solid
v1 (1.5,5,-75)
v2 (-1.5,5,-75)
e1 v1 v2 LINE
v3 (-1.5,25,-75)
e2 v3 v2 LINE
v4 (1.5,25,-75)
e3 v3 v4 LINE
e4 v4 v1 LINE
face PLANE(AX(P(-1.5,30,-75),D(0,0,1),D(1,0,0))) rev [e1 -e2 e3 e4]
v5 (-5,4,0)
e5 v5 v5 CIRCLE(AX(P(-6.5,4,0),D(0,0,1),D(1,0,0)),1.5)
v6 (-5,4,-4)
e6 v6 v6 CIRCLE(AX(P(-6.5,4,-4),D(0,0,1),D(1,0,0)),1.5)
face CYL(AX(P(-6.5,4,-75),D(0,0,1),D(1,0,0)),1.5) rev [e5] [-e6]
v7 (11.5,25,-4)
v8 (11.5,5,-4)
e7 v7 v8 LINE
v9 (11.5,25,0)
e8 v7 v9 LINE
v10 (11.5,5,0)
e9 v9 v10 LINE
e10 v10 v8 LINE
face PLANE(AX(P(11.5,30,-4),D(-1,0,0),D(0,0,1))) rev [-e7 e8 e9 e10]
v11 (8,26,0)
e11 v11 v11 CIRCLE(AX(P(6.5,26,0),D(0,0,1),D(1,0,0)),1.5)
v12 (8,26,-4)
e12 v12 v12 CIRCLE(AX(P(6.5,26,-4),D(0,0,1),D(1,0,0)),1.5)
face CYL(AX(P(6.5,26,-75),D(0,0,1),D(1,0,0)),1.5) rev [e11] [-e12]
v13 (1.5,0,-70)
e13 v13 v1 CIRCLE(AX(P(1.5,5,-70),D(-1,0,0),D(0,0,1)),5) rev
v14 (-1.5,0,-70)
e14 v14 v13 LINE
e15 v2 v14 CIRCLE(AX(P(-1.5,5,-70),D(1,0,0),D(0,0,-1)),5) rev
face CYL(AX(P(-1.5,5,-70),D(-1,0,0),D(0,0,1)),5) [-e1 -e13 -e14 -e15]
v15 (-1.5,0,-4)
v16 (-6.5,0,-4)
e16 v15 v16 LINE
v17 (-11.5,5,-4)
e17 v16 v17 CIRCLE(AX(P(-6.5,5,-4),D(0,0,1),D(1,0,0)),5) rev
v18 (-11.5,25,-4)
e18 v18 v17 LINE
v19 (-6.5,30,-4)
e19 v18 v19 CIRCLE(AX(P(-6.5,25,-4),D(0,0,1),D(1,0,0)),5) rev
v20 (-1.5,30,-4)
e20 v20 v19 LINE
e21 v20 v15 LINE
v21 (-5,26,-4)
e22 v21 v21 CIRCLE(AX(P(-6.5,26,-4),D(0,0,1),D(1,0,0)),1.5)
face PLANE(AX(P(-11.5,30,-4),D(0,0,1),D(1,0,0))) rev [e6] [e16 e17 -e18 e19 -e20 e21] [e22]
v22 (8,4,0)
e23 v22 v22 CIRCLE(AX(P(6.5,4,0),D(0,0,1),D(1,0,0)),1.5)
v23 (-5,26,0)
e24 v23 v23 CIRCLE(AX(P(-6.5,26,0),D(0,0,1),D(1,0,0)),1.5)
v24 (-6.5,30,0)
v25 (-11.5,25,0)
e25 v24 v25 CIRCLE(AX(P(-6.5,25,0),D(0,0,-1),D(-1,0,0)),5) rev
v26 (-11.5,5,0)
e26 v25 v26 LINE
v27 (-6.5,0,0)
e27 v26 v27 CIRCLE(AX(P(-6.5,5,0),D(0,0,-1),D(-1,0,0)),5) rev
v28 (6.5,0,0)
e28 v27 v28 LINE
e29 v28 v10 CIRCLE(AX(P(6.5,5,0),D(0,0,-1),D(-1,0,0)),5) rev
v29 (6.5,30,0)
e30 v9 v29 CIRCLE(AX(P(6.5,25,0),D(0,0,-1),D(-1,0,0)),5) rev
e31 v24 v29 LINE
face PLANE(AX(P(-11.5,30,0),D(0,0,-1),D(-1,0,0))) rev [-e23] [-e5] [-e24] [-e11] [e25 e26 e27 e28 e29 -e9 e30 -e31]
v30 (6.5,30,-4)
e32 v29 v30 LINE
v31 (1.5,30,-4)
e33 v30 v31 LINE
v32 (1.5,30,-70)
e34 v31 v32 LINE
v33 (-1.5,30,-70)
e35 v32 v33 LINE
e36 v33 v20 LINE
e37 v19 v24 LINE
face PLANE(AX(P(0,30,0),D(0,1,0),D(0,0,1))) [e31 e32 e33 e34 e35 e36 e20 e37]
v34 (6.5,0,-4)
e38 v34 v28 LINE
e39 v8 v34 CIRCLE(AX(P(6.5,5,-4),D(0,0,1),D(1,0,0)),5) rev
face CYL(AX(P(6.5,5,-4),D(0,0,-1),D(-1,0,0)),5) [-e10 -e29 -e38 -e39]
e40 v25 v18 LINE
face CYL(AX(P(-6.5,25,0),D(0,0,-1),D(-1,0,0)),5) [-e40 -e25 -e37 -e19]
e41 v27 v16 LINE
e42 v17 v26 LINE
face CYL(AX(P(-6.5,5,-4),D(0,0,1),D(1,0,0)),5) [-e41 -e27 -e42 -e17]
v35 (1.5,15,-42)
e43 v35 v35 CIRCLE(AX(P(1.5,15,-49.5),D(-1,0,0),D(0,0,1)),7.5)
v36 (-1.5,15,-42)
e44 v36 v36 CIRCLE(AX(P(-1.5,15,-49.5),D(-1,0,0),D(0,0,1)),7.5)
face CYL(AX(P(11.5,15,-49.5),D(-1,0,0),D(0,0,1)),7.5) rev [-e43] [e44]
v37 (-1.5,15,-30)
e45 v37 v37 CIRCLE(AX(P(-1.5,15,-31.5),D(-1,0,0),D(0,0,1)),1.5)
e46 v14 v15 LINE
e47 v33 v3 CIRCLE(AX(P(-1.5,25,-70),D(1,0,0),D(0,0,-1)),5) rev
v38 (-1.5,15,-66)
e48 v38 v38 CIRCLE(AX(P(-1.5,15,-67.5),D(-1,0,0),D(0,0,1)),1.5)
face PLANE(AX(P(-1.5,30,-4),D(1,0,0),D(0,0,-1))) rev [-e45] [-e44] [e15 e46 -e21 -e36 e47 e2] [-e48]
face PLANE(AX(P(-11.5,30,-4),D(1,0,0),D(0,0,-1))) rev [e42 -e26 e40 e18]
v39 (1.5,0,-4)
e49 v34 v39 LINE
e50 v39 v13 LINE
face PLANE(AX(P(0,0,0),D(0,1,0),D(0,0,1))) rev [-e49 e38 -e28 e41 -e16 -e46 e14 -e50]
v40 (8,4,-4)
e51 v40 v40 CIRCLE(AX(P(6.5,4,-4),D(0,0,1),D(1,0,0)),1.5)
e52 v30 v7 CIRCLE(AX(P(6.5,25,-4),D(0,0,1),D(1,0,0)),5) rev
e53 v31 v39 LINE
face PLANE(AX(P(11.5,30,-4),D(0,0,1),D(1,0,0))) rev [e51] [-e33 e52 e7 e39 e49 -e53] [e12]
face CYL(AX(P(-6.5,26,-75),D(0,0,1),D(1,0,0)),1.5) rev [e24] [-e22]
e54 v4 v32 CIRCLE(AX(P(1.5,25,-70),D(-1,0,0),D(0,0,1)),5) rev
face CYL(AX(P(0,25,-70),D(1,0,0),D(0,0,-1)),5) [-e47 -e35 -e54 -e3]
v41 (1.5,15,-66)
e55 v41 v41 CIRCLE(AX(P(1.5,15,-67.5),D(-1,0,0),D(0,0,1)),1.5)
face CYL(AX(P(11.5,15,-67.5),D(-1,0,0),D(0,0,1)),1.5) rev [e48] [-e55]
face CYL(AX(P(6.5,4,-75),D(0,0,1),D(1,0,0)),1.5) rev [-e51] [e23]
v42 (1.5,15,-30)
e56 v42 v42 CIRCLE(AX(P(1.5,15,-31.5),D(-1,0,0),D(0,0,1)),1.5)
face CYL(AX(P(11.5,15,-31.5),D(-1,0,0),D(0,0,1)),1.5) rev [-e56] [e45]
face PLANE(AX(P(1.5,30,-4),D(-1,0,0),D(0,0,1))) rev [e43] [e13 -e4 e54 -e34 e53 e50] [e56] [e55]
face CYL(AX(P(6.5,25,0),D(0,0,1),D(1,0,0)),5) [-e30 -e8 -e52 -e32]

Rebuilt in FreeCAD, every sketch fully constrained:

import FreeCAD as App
import Part
import Sketcher

V = App.Vector
Q = App.Units.Quantity


def edges_at(feature, points):
    """Names of the edges that pass closest to the given points."""
    edges = feature.Shape.Edges
    near = lambda p: min(range(len(edges)), key=lambda i: edges[i].distToShape(Part.Vertex(*p))[0])
    return sorted({f"Edge{near(p) + 1}" for p in points})


def add_polygon(sketch, points):
    """Adds a closed chain of lines whose ends are joined by coincident constraints."""
    first, n = sketch.GeometryCount, len(points)
    for a, b in zip(points, points[1:] + points[:1]):
        sketch.addGeometry(Part.LineSegment(App.Vector(*a, 0), App.Vector(*b, 0)), False)
    for i in range(n):
        sketch.addConstraint(Sketcher.Constraint("Coincident", first + i, 2, first + (i + 1) % n, 1))

doc = App.newDocument("Part")
body = doc.addObject("PartDesign::Body", "Body")

sketch1 = body.newObject("Sketcher::SketchObject", "Sketch")
sketch1.AttachmentSupport = (doc.getObject("XZ_Plane"), [""])
sketch1.MapMode = "FlatFace"
add_polygon(sketch1, [(-1.5, -4), (-11.5, -4), (-11.5, 0), (11.5, 0), (11.5, -4), (1.5, -4), (1.5, -75), (-1.5, -75)])
sketch1.addConstraint([
    Sketcher.Constraint("Horizontal", 0),
    Sketcher.Constraint("Vertical", 1),
    Sketcher.Constraint("Horizontal", 2),
    Sketcher.Constraint("Vertical", 3),
    Sketcher.Constraint("Horizontal", 4),
    Sketcher.Constraint("Vertical", 5),
    Sketcher.Constraint("Horizontal", 6),
    Sketcher.Constraint("Vertical", 7),
    Sketcher.Constraint("Symmetric", 1, 2, 2, 2, -1, 1),
    Sketcher.Constraint("Symmetric", 4, 2, 7, 2, -2),
    Sketcher.Constraint("DistanceX", 0, 2, 0, 1, Q("10 mm")),
    Sketcher.Constraint("DistanceX", 2, 1, 2, 2, Q("23 mm")),
    Sketcher.Constraint("DistanceY", 1, 1, 1, 2, Q("4 mm")),
    Sketcher.Constraint("DistanceY", 5, 2, 5, 1, Q("71 mm")),
])
pad1 = body.newObject("PartDesign::Pad", "Pad")
pad1.Profile = sketch1
pad1.Length = 30
pad1.Reversed = True

sketch2 = body.newObject("Sketcher::SketchObject", "Sketch001")
sketch2.AttachmentSupport = (doc.getObject("YZ_Plane"), [""])
sketch2.MapMode = "FlatFace"
sketch2.AttachmentOffset = App.Placement(V(0, 0, -1.5), App.Rotation())
sketch2.addGeometry([
    Part.Circle(V(15, -67.5, 0), V(0, 0, 1), 1.5),
    Part.Circle(V(15, -31.5, 0), V(0, 0, 1), 1.5),
    Part.Circle(V(15, -49.5, 0), V(0, 0, 1), 7.5),
], False)
sketch2.addConstraint([
    Sketcher.Constraint("Equal", 0, 1),
    Sketcher.Constraint("Vertical", 0, 3, 1, 3),
    Sketcher.Constraint("Vertical", 1, 3, 2, 3),
    Sketcher.Constraint("Diameter", 0, Q("3 mm")),
    Sketcher.Constraint("Diameter", 2, Q("15 mm")),
    Sketcher.Constraint("DistanceX", -1, 1, 0, 3, Q("15 mm")),
    Sketcher.Constraint("DistanceY", 0, 3, 1, 3, Q("36 mm")),
    Sketcher.Constraint("DistanceY", 0, 3, 2, 3, Q("18 mm")),
    Sketcher.Constraint("DistanceY", 0, 3, -1, 1, Q("67.5 mm")),
])
pocket1 = body.newObject("PartDesign::Pocket", "Pocket")
pocket1.Profile = sketch2
pocket1.Type = "ThroughAll"
pocket1.Reversed = True

sketch3 = body.newObject("Sketcher::SketchObject", "Sketch002")
sketch3.AttachmentSupport = (doc.getObject("XY_Plane"), [""])
sketch3.MapMode = "FlatFace"
sketch3.addGeometry([
    Part.Circle(V(-6.5, 26, 0), V(0, 0, 1), 1.5),
    Part.Circle(V(-6.5, 4, 0), V(0, 0, 1), 1.5),
    Part.Circle(V(6.5, 4, 0), V(0, 0, 1), 1.5),
    Part.Circle(V(6.5, 26, 0), V(0, 0, 1), 1.5),
], False)
sketch3.addConstraint([
    Sketcher.Constraint("Equal", 0, 1),
    Sketcher.Constraint("Equal", 1, 2),
    Sketcher.Constraint("Equal", 2, 3),
    Sketcher.Constraint("Symmetric", 1, 3, 2, 3, -2),
    Sketcher.Constraint("Symmetric", 0, 3, 3, 3, -2),
    Sketcher.Constraint("Vertical", 0, 3, 1, 3),
    Sketcher.Constraint("Diameter", 0, Q("3 mm")),
    Sketcher.Constraint("DistanceY", -1, 1, 0, 3, Q("26 mm")),
    Sketcher.Constraint("DistanceY", -1, 1, 1, 3, Q("4 mm")),
    Sketcher.Constraint("DistanceX", 1, 3, 2, 3, Q("13 mm")),
])
pocket2 = body.newObject("PartDesign::Pocket", "Pocket001")
pocket2.Profile = sketch3
pocket2.Type = "ThroughAll"
doc.recompute()

fillet = body.newObject("PartDesign::Fillet", "Fillet")
fillet.Base = (pocket2, edges_at(pocket2, [
    (11.5, 0, -2),
    (-11.5, 0, -2),
    (11.5, 30, -2),
    (0, 30, -75),
    (-11.5, 30, -2),
    (0, 0, -75),
]))
fillet.Radius = 5

doc.recompute()
